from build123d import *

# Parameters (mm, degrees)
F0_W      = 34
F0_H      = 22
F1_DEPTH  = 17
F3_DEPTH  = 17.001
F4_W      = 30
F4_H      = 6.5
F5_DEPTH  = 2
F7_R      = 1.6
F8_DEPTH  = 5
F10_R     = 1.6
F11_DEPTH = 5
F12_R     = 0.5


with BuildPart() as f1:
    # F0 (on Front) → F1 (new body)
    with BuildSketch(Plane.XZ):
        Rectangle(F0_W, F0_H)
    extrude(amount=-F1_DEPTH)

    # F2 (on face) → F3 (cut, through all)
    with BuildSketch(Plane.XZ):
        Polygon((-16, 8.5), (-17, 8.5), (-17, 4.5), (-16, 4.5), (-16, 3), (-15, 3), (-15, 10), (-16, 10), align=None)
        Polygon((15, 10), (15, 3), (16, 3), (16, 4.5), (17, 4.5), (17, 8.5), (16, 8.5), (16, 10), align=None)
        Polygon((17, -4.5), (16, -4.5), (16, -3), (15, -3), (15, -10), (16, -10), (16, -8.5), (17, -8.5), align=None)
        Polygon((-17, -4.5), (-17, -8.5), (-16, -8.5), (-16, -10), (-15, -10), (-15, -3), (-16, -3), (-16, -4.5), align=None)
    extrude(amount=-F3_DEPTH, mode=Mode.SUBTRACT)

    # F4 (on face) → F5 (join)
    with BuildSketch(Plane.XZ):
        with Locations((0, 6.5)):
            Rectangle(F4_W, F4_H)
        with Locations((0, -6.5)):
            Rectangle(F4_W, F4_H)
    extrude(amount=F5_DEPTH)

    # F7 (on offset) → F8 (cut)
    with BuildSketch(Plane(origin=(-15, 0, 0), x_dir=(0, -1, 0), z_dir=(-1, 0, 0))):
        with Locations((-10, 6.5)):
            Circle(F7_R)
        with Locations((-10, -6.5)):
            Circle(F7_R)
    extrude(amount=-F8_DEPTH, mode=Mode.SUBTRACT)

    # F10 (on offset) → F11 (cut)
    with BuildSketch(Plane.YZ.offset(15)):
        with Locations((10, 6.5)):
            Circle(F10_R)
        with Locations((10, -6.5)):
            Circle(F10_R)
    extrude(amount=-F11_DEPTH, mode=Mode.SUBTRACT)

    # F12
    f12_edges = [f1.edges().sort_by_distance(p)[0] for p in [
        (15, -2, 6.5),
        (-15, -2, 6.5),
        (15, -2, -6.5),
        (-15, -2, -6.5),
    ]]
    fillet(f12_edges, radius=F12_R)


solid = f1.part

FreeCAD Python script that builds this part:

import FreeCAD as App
import Part
import Sketcher
Q = App.Units.Quantity


def edges_at(feature, points):
    """Names of the edges that pass closest to the given points."""
    edges = feature.Shape.Edges
    near = lambda p: min(range(len(edges)), key=lambda i: edges[i].distToShape(Part.Vertex(*p))[0])
    return sorted({f"Edge{near(p) + 1}" for p in points})

doc = App.newDocument("Part")
body = doc.addObject("PartDesign::Body", "Body")

# Sketch on XZ plane
sketch1 = doc.addObject("Sketcher::SketchObject", "Sketch")
body.addObject(sketch1)
sketch1.AttachmentSupport = (doc.XZ_Plane, [""])
sketch1.MapMode = "FlatFace"
sketch1.addGeometry(Part.LineSegment(App.Vector(-17, 11, 0), App.Vector(-17, -11, 0)), False)
sketch1.addGeometry(Part.LineSegment(App.Vector(-17, -11, 0), App.Vector(17, -11, 0)), False)
sketch1.addGeometry(Part.LineSegment(App.Vector(17, -11, 0), App.Vector(17, 11, 0)), False)
sketch1.addGeometry(Part.LineSegment(App.Vector(17, 11, 0), App.Vector(-17, 11, 0)), False)
sketch1.addConstraint(Sketcher.Constraint("Coincident", 0, 2, 1, 1))
sketch1.addConstraint(Sketcher.Constraint("Coincident", 1, 2, 2, 1))
sketch1.addConstraint(Sketcher.Constraint("Coincident", 2, 2, 3, 1))
sketch1.addConstraint(Sketcher.Constraint("Coincident", 3, 2, 0, 1))
sketch1.addConstraint(Sketcher.Constraint("Vertical", 0))
sketch1.addConstraint(Sketcher.Constraint("Horizontal", 1))
sketch1.addConstraint(Sketcher.Constraint("Vertical", 2))
sketch1.addConstraint(Sketcher.Constraint("Horizontal", 3))
sketch1.addConstraint(Sketcher.Constraint("Symmetric", 0, 2, 2, 2, -1, 1))
sketch1.addConstraint(Sketcher.Constraint("DistanceX", 1, 1, 1, 2, Q("34 mm")))
sketch1.addConstraint(Sketcher.Constraint("DistanceY", 0, 2, 0, 1, Q("22 mm")))
pad1 = doc.addObject("PartDesign::Pad", "Pad")
body.addObject(pad1)
pad1.Profile = sketch1
pad1.Length = 17
pad1.Reversed = True

# Sketch on XZ plane
sketch2 = doc.addObject("Sketcher::SketchObject", "Sketch001")
body.addObject(sketch2)
sketch2.AttachmentSupport = (doc.XZ_Plane, [""])
sketch2.MapMode = "FlatFace"
sketch2.addGeometry(Part.LineSegment(App.Vector(-16, 8.5, 0), App.Vector(-17, 8.5, 0)), False)
sketch2.addGeometry(Part.LineSegment(App.Vector(-17, 8.5, 0), App.Vector(-17, 4.5, 0)), False)
sketch2.addGeometry(Part.LineSegment(App.Vector(-17, 4.5, 0), App.Vector(-16, 4.5, 0)), False)
sketch2.addGeometry(Part.LineSegment(App.Vector(-16, 4.5, 0), App.Vector(-16, 3, 0)), False)
sketch2.addGeometry(Part.LineSegment(App.Vector(-16, 3, 0), App.Vector(-15, 3, 0)), False)
sketch2.addGeometry(Part.LineSegment(App.Vector(-15, 3, 0), App.Vector(-15, 10, 0)), False)
sketch2.addGeometry(Part.LineSegment(App.Vector(-15, 10, 0), App.Vector(-16, 10, 0)), False)
sketch2.addGeometry(Part.LineSegment(App.Vector(-16, 10, 0), App.Vector(-16, 8.5, 0)), False)
sketch2.addGeometry(Part.LineSegment(App.Vector(15, 10, 0), App.Vector(15, 3, 0)), False)
sketch2.addGeometry(Part.LineSegment(App.Vector(15, 3, 0), App.Vector(16, 3, 0)), False)
sketch2.addGeometry(Part.LineSegment(App.Vector(16, 3, 0), App.Vector(16, 4.5, 0)), False)
sketch2.addGeometry(Part.LineSegment(App.Vector(16, 4.5, 0), App.Vector(17, 4.5, 0)), False)
sketch2.addGeometry(Part.LineSegment(App.Vector(17, 4.5, 0), App.Vector(17, 8.5, 0)), False)
sketch2.addGeometry(Part.LineSegment(App.Vector(17, 8.5, 0), App.Vector(16, 8.5, 0)), False)
sketch2.addGeometry(Part.LineSegment(App.Vector(16, 8.5, 0), App.Vector(16, 10, 0)), False)
sketch2.addGeometry(Part.LineSegment(App.Vector(16, 10, 0), App.Vector(15, 10, 0)), False)
sketch2.addGeometry(Part.LineSegment(App.Vector(17, -4.5, 0), App.Vector(16, -4.5, 0)), False)
sketch2.addGeometry(Part.LineSegment(App.Vector(16, -4.5, 0), App.Vector(16, -3, 0)), False)
sketch2.addGeometry(Part.LineSegment(App.Vector(16, -3, 0), App.Vector(15, -3, 0)), False)
sketch2.addGeometry(Part.LineSegment(App.Vector(15, -3, 0), App.Vector(15, -10, 0)), False)
sketch2.addGeometry(Part.LineSegment(App.Vector(15, -10, 0), App.Vector(16, -10, 0)), False)
sketch2.addGeometry(Part.LineSegment(App.Vector(16, -10, 0), App.Vector(16, -8.5, 0)), False)
sketch2.addGeometry(Part.LineSegment(App.Vector(16, -8.5, 0), App.Vector(17, -8.5, 0)), False)
sketch2.addGeometry(Part.LineSegment(App.Vector(17, -8.5, 0), App.Vector(17, -4.5, 0)), False)
sketch2.addGeometry(Part.LineSegment(App.Vector(-17, -4.5, 0), App.Vector(-17, -8.5, 0)), False)
sketch2.addGeometry(Part.LineSegment(App.Vector(-17, -8.5, 0), App.Vector(-16, -8.5, 0)), False)
sketch2.addGeometry(Part.LineSegment(App.Vector(-16, -8.5, 0), App.Vector(-16, -10, 0)), False)
sketch2.addGeometry(Part.LineSegment(App.Vector(-16, -10, 0), App.Vector(-15, -10, 0)), False)
sketch2.addGeometry(Part.LineSegment(App.Vector(-15, -10, 0), App.Vector(-15, -3, 0)), False)
sketch2.addGeometry(Part.LineSegment(App.Vector(-15, -3, 0), App.Vector(-16, -3, 0)), False)
sketch2.addGeometry(Part.LineSegment(App.Vector(-16, -3, 0), App.Vector(-16, -4.5, 0)), False)
sketch2.addGeometry(Part.LineSegment(App.Vector(-16, -4.5, 0), App.Vector(-17, -4.5, 0)), False)
sketch2.addConstraint(Sketcher.Constraint("Coincident", 0, 2, 1, 1))
sketch2.addConstraint(Sketcher.Constraint("Coincident", 1, 2, 2, 1))
sketch2.addConstraint(Sketcher.Constraint("Coincident", 2, 2, 3, 1))
sketch2.addConstraint(Sketcher.Constraint("Coincident", 3, 2, 4, 1))
sketch2.addConstraint(Sketcher.Constraint("Coincident", 4, 2, 5, 1))
sketch2.addConstraint(Sketcher.Constraint("Coincident", 5, 2, 6, 1))
sketch2.addConstraint(Sketcher.Constraint("Coincident", 6, 2, 7, 1))
sketch2.addConstraint(Sketcher.Constraint("Coincident", 7, 2, 0, 1))
sketch2.addConstraint(Sketcher.Constraint("Coincident", 8, 2, 9, 1))
sketch2.addConstraint(Sketcher.Constraint("Coincident", 9, 2, 10, 1))
sketch2.addConstraint(Sketcher.Constraint("Coincident", 10, 2, 11, 1))
sketch2.addConstraint(Sketcher.Constraint("Coincident", 11, 2, 12, 1))
sketch2.addConstraint(Sketcher.Constraint("Coincident", 12, 2, 13, 1))
sketch2.addConstraint(Sketcher.Constraint("Coincident", 13, 2, 14, 1))
sketch2.addConstraint(Sketcher.Constraint("Coincident", 14, 2, 15, 1))
sketch2.addConstraint(Sketcher.Constraint("Coincident", 15, 2, 8, 1))
sketch2.addConstraint(Sketcher.Constraint("Coincident", 16, 2, 17, 1))
sketch2.addConstraint(Sketcher.Constraint("Coincident", 17, 2, 18, 1))
sketch2.addConstraint(Sketcher.Constraint("Coincident", 18, 2, 19, 1))
sketch2.addConstraint(Sketcher.Constraint("Coincident", 19, 2, 20, 1))
sketch2.addConstraint(Sketcher.Constraint("Coincident", 20, 2, 21, 1))
sketch2.addConstraint(Sketcher.Constraint("Coincident", 21, 2, 22, 1))
sketch2.addConstraint(Sketcher.Constraint("Coincident", 22, 2, 23, 1))
sketch2.addConstraint(Sketcher.Constraint("Coincident", 23, 2, 16, 1))
sketch2.addConstraint(Sketcher.Constraint("Coincident", 24, 2, 25, 1))
sketch2.addConstraint(Sketcher.Constraint("Coincident", 25, 2, 26, 1))
sketch2.addConstraint(Sketcher.Constraint("Coincident", 26, 2, 27, 1))
sketch2.addConstraint(Sketcher.Constraint("Coincident", 27, 2, 28, 1))
sketch2.addConstraint(Sketcher.Constraint("Coincident", 28, 2, 29, 1))
sketch2.addConstraint(Sketcher.Constraint("Coincident", 29, 2, 30, 1))
sketch2.addConstraint(Sketcher.Constraint("Coincident", 30, 2, 31, 1))
sketch2.addConstraint(Sketcher.Constraint("Coincident", 31, 2, 24, 1))
sketch2.addConstraint(Sketcher.Constraint("Horizontal", 0))
sketch2.addConstraint(Sketcher.Constraint("Vertical", 1))
sketch2.addConstraint(Sketcher.Constraint("Horizontal", 2))
sketch2.addConstraint(Sketcher.Constraint("Vertical", 3))
sketch2.addConstraint(Sketcher.Constraint("Horizontal", 4))
sketch2.addConstraint(Sketcher.Constraint("Vertical", 5))
sketch2.addConstraint(Sketcher.Constraint("Horizontal", 6))
sketch2.addConstraint(Sketcher.Constraint("Vertical", 7))
sketch2.addConstraint(Sketcher.Constraint("Vertical", 8))
sketch2.addConstraint(Sketcher.Constraint("Horizontal", 9))
sketch2.addConstraint(Sketcher.Constraint("Vertical", 10))
sketch2.addConstraint(Sketcher.Constraint("Horizontal", 11))
sketch2.addConstraint(Sketcher.Constraint("Vertical", 12))
sketch2.addConstraint(Sketcher.Constraint("Horizontal", 13))
sketch2.addConstraint(Sketcher.Constraint("Vertical", 14))
sketch2.addConstraint(Sketcher.Constraint("Horizontal", 15))
sketch2.addConstraint(Sketcher.Constraint("Horizontal", 16))
sketch2.addConstraint(Sketcher.Constraint("Vertical", 17))
sketch2.addConstraint(Sketcher.Constraint("Horizontal", 18))
sketch2.addConstraint(Sketcher.Constraint("Vertical", 19))
sketch2.addConstraint(Sketcher.Constraint("Horizontal", 20))
sketch2.addConstraint(Sketcher.Constraint("Vertical", 21))
sketch2.addConstraint(Sketcher.Constraint("Horizontal", 22))
sketch2.addConstraint(Sketcher.Constraint("Vertical", 23))
sketch2.addConstraint(Sketcher.Constraint("Vertical", 24))
sketch2.addConstraint(Sketcher.Constraint("Horizontal", 25))
sketch2.addConstraint(Sketcher.Constraint("Vertical", 26))
sketch2.addConstraint(Sketcher.Constraint("Horizontal", 27))
sketch2.addConstraint(Sketcher.Constraint("Vertical", 28))
sketch2.addConstraint(Sketcher.Constraint("Horizontal", 29))
sketch2.addConstraint(Sketcher.Constraint("Vertical", 30))
sketch2.addConstraint(Sketcher.Constraint("Horizontal", 31))
sketch2.addConstraint(Sketcher.Constraint("Symmetric", 2, 2, 16, 2, -1, 1))
sketch2.addConstraint(Sketcher.Constraint("Symmetric", 4, 2, 18, 2, -1, 1))
sketch2.addConstraint(Sketcher.Constraint("Symmetric", 6, 2, 20, 2, -1, 1))
sketch2.addConstraint(Sketcher.Constraint("Symmetric", 0, 2, 22, 2, -1, 1))
sketch2.addConstraint(Sketcher.Constraint("Symmetric", 12, 2, 24, 2, -1, 1))
sketch2.addConstraint(Sketcher.Constraint("Symmetric", 14, 2, 26, 2, -1, 1))
sketch2.addConstraint(Sketcher.Constraint("Symmetric", 8, 2, 28, 2, -1, 1))
sketch2.addConstraint(Sketcher.Constraint("Symmetric", 10, 2, 30, 2, -1, 1))
sketch2.addConstraint(Sketcher.Constraint("Symmetric", 4, 2, 8, 2, -2))
sketch2.addConstraint(Sketcher.Constraint("Symmetric", 2, 2, 10, 2, -2))
sketch2.addConstraint(Sketcher.Constraint("Symmetric", 0, 2, 12, 2, -2))
sketch2.addConstraint(Sketcher.Constraint("Symmetric", 6, 2, 14, 2, -2))
sketch2.addConstraint(Sketcher.Constraint("Vertical", 3, 2, 6, 2))
sketch2.addConstraint(Sketcher.Constraint("Equal", 2, 4))
sketch2.addConstraint(Sketcher.Constraint("Equal", 3, 7))
sketch2.addConstraint(Sketcher.Constraint("DistanceX", 0, 2, 0, 1, Q("1 mm")))
sketch2.addConstraint(Sketcher.Constraint("DistanceY", 1, 2, 1, 1, Q("4 mm")))
sketch2.addConstraint(Sketcher.Constraint("DistanceY", 5, 1, 5, 2, Q("7 mm")))
sketch2.addConstraint(Sketcher.Constraint("DistanceX", 0, 2, -1, 1, Q("17 mm")))
sketch2.addConstraint(Sketcher.Constraint("DistanceY", -1, 1, 3, 2, Q("3 mm")))
pocket1 = doc.addObject("PartDesign::Pocket", "Pocket")
body.addObject(pocket1)
pocket1.Profile = sketch2
pocket1.Type = "ThroughAll"

# Sketch on XZ plane
sketch3 = doc.addObject("Sketcher::SketchObject", "Sketch002")
body.addObject(sketch3)
sketch3.AttachmentSupport = (doc.XZ_Plane, [""])
sketch3.MapMode = "FlatFace"
sketch3.addGeometry(Part.LineSegment(App.Vector(-15, 10, 0), App.Vector(-15, 3, 0)), False)
sketch3.addGeometry(Part.LineSegment(App.Vector(-15, 3, 0), App.Vector(15, 3, 0)), False)
sketch3.addGeometry(Part.LineSegment(App.Vector(15, 3, 0), App.Vector(15, 10, 0)), False)
sketch3.addGeometry(Part.LineSegment(App.Vector(15, 10, 0), App.Vector(-15, 10, 0)), False)
sketch3.addGeometry(Part.LineSegment(App.Vector(-15, -3, 0), App.Vector(-15, -10, 0)), False)
sketch3.addGeometry(Part.LineSegment(App.Vector(-15, -10, 0), App.Vector(15, -10, 0)), False)
sketch3.addGeometry(Part.LineSegment(App.Vector(15, -10, 0), App.Vector(15, -3, 0)), False)
sketch3.addGeometry(Part.LineSegment(App.Vector(15, -3, 0), App.Vector(-15, -3, 0)), False)
sketch3.addConstraint(Sketcher.Constraint("Coincident", 0, 2, 1, 1))
sketch3.addConstraint(Sketcher.Constraint("Coincident", 1, 2, 2, 1))
sketch3.addConstraint(Sketcher.Constraint("Coincident", 2, 2, 3, 1))
sketch3.addConstraint(Sketcher.Constraint("Coincident", 3, 2, 0, 1))
sketch3.addConstraint(Sketcher.Constraint("Coincident", 4, 2, 5, 1))
sketch3.addConstraint(Sketcher.Constraint("Coincident", 5, 2, 6, 1))
sketch3.addConstraint(Sketcher.Constraint("Coincident", 6, 2, 7, 1))
sketch3.addConstraint(Sketcher.Constraint("Coincident", 7, 2, 4, 1))
sketch3.addConstraint(Sketcher.Constraint("Vertical", 0))
sketch3.addConstraint(Sketcher.Constraint("Horizontal", 1))
sketch3.addConstraint(Sketcher.Constraint("Vertical", 2))
sketch3.addConstraint(Sketcher.Constraint("Horizontal", 3))
sketch3.addConstraint(Sketcher.Constraint("Vertical", 4))
sketch3.addConstraint(Sketcher.Constraint("Horizontal", 5))
sketch3.addConstraint(Sketcher.Constraint("Vertical", 6))
sketch3.addConstraint(Sketcher.Constraint("Horizontal", 7))
sketch3.addConstraint(Sketcher.Constraint("Symmetric", 2, 2, 4, 2, -1, 1))
sketch3.addConstraint(Sketcher.Constraint("Symmetric", 0, 2, 6, 2, -1, 1))
sketch3.addConstraint(Sketcher.Constraint("Vertical", 3, 2, 4, 2))
sketch3.addConstraint(Sketcher.Constraint("DistanceX", 1, 1, 1, 2, Q("30 mm")))
sketch3.addConstraint(Sketcher.Constraint("DistanceY", 0, 2, 0, 1, Q("6.5 mm")))
sketch3.addConstraint(Sketcher.Constraint("DistanceY", 4, 2, 0, 2, Q("13 mm")))
pad2 = doc.addObject("PartDesign::Pad", "Pad001")
body.addObject(pad2)
pad2.Profile = sketch3
pad2.Length = 2

# Sketch on YZ plane
sketch4 = doc.addObject("Sketcher::SketchObject", "Sketch003")
body.addObject(sketch4)
sketch4.AttachmentSupport = (doc.YZ_Plane, [""])
sketch4.MapMode = "FlatFace"
sketch4.AttachmentOffset = App.Placement(App.Vector(0, 0, -15), App.Rotation())
sketch4.addGeometry(Part.Circle(App.Vector(10, 6.5, 0), App.Vector(0, 0, 1), 1.6), False)
sketch4.addGeometry(Part.Circle(App.Vector(10, -6.5, 0), App.Vector(0, 0, 1), 1.6), False)
sketch4.addConstraint(Sketcher.Constraint("Equal", 0, 1))
sketch4.addConstraint(Sketcher.Constraint("Symmetric", 0, 3, 1, 3, -1))
sketch4.addConstraint(Sketcher.Constraint("Diameter", 0, Q("3.2 mm")))
sketch4.addConstraint(Sketcher.Constraint("DistanceX", -1, 1, 0, 3, Q("10 mm")))
sketch4.addConstraint(Sketcher.Constraint("DistanceY", 1, 3, 0, 3, Q("13 mm")))
pocket2 = doc.addObject("PartDesign::Pocket", "Pocket001")
body.addObject(pocket2)
pocket2.Profile = sketch4
pocket2.Length = 5
pocket2.Reversed = True

# Sketch on YZ plane
sketch5 = doc.addObject("Sketcher::SketchObject", "Sketch004")
body.addObject(sketch5)
sketch5.AttachmentSupport = (doc.YZ_Plane, [""])
sketch5.MapMode = "FlatFace"
sketch5.AttachmentOffset = App.Placement(App.Vector(0, 0, 15), App.Rotation())
sketch5.addGeometry(Part.Circle(App.Vector(10, 6.5, 0), App.Vector(0, 0, 1), 1.6), False)
sketch5.addGeometry(Part.Circle(App.Vector(10, -6.5, 0), App.Vector(0, 0, 1), 1.6), False)
sketch5.addConstraint(Sketcher.Constraint("Equal", 0, 1))
sketch5.addConstraint(Sketcher.Constraint("Symmetric", 0, 3, 1, 3, -1))
sketch5.addConstraint(Sketcher.Constraint("Diameter", 0, Q("3.2 mm")))
sketch5.addConstraint(Sketcher.Constraint("DistanceX", -1, 1, 0, 3, Q("10 mm")))
sketch5.addConstraint(Sketcher.Constraint("DistanceY", 1, 3, 0, 3, Q("13 mm")))
pocket3 = doc.addObject("PartDesign::Pocket", "Pocket002")
body.addObject(pocket3)
pocket3.Profile = sketch5
pocket3.Length = 5
doc.recompute()

fillet = doc.addObject("PartDesign::Fillet", "Fillet")
body.addObject(fillet)
fillet.Base = (pocket3, edges_at(pocket3, [
    (15, -2, 6.5),
    (-15, -2, 6.5),
    (15, -2, -6.5),
    (-15, -2, -6.5),
]))
fillet.Radius = 0.5

doc.recompute()
